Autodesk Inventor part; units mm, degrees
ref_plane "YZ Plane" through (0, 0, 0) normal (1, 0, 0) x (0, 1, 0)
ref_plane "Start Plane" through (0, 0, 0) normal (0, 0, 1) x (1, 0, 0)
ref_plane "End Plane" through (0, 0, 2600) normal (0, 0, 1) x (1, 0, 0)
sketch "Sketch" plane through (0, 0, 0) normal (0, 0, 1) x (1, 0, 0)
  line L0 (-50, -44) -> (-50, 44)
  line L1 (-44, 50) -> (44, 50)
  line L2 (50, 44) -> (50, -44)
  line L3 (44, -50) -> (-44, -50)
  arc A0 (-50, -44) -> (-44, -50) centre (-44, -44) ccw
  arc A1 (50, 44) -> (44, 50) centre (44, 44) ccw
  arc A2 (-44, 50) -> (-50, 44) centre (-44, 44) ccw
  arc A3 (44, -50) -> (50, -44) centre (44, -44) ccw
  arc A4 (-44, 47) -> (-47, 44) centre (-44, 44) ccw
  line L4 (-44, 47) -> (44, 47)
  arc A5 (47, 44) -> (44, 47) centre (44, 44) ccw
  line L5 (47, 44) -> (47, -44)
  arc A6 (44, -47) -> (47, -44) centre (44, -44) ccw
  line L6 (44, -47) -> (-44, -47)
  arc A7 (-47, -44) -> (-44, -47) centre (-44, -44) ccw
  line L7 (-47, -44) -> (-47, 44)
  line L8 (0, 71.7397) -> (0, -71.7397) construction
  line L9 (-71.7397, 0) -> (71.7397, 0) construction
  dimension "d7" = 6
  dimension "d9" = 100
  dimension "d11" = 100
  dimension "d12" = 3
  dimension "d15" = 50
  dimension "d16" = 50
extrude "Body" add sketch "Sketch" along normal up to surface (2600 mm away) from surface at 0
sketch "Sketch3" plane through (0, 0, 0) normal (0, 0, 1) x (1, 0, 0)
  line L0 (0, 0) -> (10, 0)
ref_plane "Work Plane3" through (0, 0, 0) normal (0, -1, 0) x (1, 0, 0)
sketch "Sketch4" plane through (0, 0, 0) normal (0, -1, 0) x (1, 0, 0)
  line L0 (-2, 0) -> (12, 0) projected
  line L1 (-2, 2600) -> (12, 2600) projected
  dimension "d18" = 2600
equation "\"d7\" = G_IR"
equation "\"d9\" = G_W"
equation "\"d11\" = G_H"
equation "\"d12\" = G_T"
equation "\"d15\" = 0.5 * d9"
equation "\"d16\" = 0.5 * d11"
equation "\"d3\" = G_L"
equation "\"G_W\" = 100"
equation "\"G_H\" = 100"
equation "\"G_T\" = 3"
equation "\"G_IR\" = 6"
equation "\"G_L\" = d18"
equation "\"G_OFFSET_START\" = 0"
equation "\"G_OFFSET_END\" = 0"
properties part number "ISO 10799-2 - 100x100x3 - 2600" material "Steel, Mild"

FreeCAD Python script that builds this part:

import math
import FreeCAD as App
import Part
import Sketcher

V = App.Vector
Q = App.Units.Quantity

doc = App.newDocument("Part")
body = doc.addObject("PartDesign::Body", "Body")

sketch1 = doc.addObject("Sketcher::SketchObject", "Sketch")
body.addObject(sketch1)
sketch1.AttachmentSupport = (doc.XY_Plane, [""])
sketch1.MapMode = "FlatFace"
sketch1.addGeometry([
    Part.LineSegment(V(-50, 44, 0), V(-50, -44, 0)),
    Part.ArcOfCircle(Part.Circle(V(-44, -44, 0), V(0, 0, 1), 6), math.radians(180), math.radians(270)),
    Part.LineSegment(V(-44, -50, 0), V(44, -50, 0)),
    Part.ArcOfCircle(Part.Circle(V(44, -44, 0), V(0, 0, 1), 6), math.radians(-90), math.radians(0)),
    Part.LineSegment(V(50, -44, 0), V(50, 44, 0)),
    Part.ArcOfCircle(Part.Circle(V(44, 44, 0), V(0, 0, 1), 6), math.radians(0), math.radians(90)),
    Part.LineSegment(V(44, 50, 0), V(-44, 50, 0)),
    Part.ArcOfCircle(Part.Circle(V(-44, 44, 0), V(0, 0, 1), 6), math.radians(90), math.radians(180)),
    Part.ArcOfCircle(Part.Circle(V(-44, 44, 0), V(0, 0, 1), 3), math.radians(90), math.radians(180)),
    Part.LineSegment(V(-44, 47, 0), V(44, 47, 0)),
    Part.ArcOfCircle(Part.Circle(V(44, 44, 0), V(0, 0, 1), 3), math.radians(0), math.radians(90)),
    Part.LineSegment(V(47, 44, 0), V(47, -44, 0)),
    Part.ArcOfCircle(Part.Circle(V(44, -44, 0), V(0, 0, 1), 3), math.radians(-90), math.radians(0)),
    Part.LineSegment(V(44, -47, 0), V(-44, -47, 0)),
    Part.ArcOfCircle(Part.Circle(V(-44, -44, 0), V(0, 0, 1), 3), math.radians(180), math.radians(270)),
    Part.LineSegment(V(-47, -44, 0), V(-47, 44, 0)),
], False)
sketch1.addConstraint([
    Sketcher.Constraint("Tangent", 0, 2, 1, 1),
    Sketcher.Constraint("Tangent", 1, 2, 2, 1),
    Sketcher.Constraint("Tangent", 2, 2, 3, 1),
    Sketcher.Constraint("Tangent", 3, 2, 4, 1),
    Sketcher.Constraint("Tangent", 4, 2, 5, 1),
    Sketcher.Constraint("Tangent", 5, 2, 6, 1),
    Sketcher.Constraint("Tangent", 6, 2, 7, 1),
    Sketcher.Constraint("Tangent", 7, 2, 0, 1),
    Sketcher.Constraint("Tangent", 8, 1, 9, 1),
    Sketcher.Constraint("Tangent", 9, 2, 10, 2),
    Sketcher.Constraint("Tangent", 10, 1, 11, 1),
    Sketcher.Constraint("Tangent", 11, 2, 12, 2),
    Sketcher.Constraint("Tangent", 12, 1, 13, 1),
    Sketcher.Constraint("Tangent", 13, 2, 14, 2),
    Sketcher.Constraint("Tangent", 14, 1, 15, 1),
    Sketcher.Constraint("Tangent", 15, 2, 8, 2),
    Sketcher.Constraint("Vertical", 0),
    Sketcher.Constraint("Horizontal", 2),
    Sketcher.Constraint("Vertical", 4),
    Sketcher.Constraint("Horizontal", 6),
    Sketcher.Constraint("Horizontal", 9),
    Sketcher.Constraint("Vertical", 11),
    Sketcher.Constraint("Horizontal", 13),
    Sketcher.Constraint("Vertical", 15),
    Sketcher.Constraint("Coincident", 8, 3, 7, 3),
    Sketcher.Constraint("Coincident", 10, 3, 5, 3),
    Sketcher.Constraint("Coincident", 12, 3, 3, 3),
    Sketcher.Constraint("Equal", 1, 3),
    Sketcher.Constraint("Equal", 3, 5),
    Sketcher.Constraint("Equal", 5, 7),
    Sketcher.Constraint("Equal", 12, 14),
    Sketcher.Constraint("Symmetric", 1, 3, 5, 3, -1, 1),
    Sketcher.Constraint("Equal", 13, 0),
    Sketcher.Constraint("Radius", 1, Q("6 mm")),
    Sketcher.Constraint("Radius", 8, Q("3 mm")),
    Sketcher.Constraint("DistanceX", 0, 2, -1, 1, Q("50 mm")),
])
pad1 = doc.addObject("PartDesign::Pad", "Pad")
body.addObject(pad1)
pad1.Profile = sketch1
pad1.Length = 2600

doc.recompute()
